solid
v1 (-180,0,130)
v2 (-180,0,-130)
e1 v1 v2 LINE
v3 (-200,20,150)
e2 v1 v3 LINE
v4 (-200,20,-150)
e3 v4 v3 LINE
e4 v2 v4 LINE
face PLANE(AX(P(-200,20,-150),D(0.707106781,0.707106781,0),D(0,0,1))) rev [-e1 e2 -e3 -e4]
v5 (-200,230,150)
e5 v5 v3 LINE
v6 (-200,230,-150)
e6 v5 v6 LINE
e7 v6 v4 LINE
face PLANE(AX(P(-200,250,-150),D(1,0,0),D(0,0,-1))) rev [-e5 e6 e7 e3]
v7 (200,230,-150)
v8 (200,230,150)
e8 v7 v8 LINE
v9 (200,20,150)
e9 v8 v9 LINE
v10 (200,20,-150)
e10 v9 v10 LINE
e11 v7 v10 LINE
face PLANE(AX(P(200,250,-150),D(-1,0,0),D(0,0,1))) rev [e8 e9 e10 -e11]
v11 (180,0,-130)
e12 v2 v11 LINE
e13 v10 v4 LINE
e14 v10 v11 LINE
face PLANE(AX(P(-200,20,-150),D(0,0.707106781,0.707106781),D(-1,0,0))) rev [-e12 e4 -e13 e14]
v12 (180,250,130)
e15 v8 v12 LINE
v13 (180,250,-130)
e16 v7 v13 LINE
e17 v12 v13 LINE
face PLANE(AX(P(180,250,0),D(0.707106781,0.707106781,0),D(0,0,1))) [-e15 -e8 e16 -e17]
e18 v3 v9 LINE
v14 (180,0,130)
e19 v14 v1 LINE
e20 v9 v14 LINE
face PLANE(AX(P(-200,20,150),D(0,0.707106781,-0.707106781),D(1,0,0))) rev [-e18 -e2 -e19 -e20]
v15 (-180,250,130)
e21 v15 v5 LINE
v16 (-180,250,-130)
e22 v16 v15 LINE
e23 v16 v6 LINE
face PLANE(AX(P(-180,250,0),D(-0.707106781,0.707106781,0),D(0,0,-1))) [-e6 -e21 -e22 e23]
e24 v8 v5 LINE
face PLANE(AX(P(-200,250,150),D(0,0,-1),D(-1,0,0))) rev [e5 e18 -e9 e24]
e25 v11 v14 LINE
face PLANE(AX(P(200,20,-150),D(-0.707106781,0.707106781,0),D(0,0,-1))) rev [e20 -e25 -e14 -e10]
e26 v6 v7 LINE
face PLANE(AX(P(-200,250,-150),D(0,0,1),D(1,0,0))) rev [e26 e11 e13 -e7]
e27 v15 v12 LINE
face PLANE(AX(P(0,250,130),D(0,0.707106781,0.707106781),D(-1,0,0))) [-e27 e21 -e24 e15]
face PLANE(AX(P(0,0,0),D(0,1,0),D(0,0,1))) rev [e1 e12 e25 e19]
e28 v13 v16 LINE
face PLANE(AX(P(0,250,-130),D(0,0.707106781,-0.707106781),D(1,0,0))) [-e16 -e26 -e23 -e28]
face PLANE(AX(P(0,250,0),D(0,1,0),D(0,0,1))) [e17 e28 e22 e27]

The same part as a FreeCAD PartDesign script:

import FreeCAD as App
import Part
import Sketcher
from FreeCAD import Vector
Q = App.Units.Quantity


def edges_at(feature, points):
    """Names of the edges that pass closest to the given points."""
    edges = feature.Shape.Edges
    near = lambda p: min(range(len(edges)), key=lambda i: edges[i].distToShape(Part.Vertex(*p))[0])
    return sorted({f"Edge{near(p) + 1}" for p in points})


def add_polygon(sketch, points):
    """Adds a closed chain of lines whose ends are joined by coincident constraints."""
    first, n = sketch.GeometryCount, len(points)
    for a, b in zip(points, points[1:] + points[:1]):
        sketch.addGeometry(Part.LineSegment(App.Vector(*a, 0), App.Vector(*b, 0)), False)
    for i in range(n):
        sketch.addConstraint(Sketcher.Constraint("Coincident", first + i, 2, first + (i + 1) % n, 1))

doc = App.newDocument("Part")
body = doc.addObject("PartDesign::Body", "Body")

# Sketch on XZ plane
sketch1 = doc.addObject("Sketcher::SketchObject", "Sketch")
body.addObject(sketch1)
sketch1.AttachmentSupport = (doc.XZ_Plane, [""])
sketch1.MapMode = "FlatFace"
add_polygon(sketch1, [(-200, -150), (-200, 150), (200, 150), (200, -150)])  # lines 0-3
sketch1.addConstraint([
    Sketcher.Constraint("Vertical", 0),
    Sketcher.Constraint("Horizontal", 1),
    Sketcher.Constraint("Vertical", 2),
    Sketcher.Constraint("Horizontal", 3),
    Sketcher.Constraint("Symmetric", 0, 2, 2, 2, -1, 1),
    Sketcher.Constraint("DistanceX", 1, 1, 1, 2, Q("400 mm")),
    Sketcher.Constraint("DistanceY", 0, 1, 0, 2, Q("300 mm")),
])
pad1 = doc.addObject("PartDesign::Pad", "Pad")
body.addObject(pad1)
pad1.Profile = sketch1
pad1.Length = 250
pad1.Reversed = True
doc.recompute()

chamfer = doc.addObject("PartDesign::Chamfer", "Chamfer")
body.addObject(chamfer)
chamfer.Base = (pad1, edges_at(pad1, [
    (-200, 250, 0),
    (0, 250, 150),
    (200, 250, 0),
    (0, 0, 150),
    (-200, 0, 0),
    (0, 0, -150),
    (200, 0, 0),
    (0, 250, -150),
]))
chamfer.Size = 20

doc.recompute()
